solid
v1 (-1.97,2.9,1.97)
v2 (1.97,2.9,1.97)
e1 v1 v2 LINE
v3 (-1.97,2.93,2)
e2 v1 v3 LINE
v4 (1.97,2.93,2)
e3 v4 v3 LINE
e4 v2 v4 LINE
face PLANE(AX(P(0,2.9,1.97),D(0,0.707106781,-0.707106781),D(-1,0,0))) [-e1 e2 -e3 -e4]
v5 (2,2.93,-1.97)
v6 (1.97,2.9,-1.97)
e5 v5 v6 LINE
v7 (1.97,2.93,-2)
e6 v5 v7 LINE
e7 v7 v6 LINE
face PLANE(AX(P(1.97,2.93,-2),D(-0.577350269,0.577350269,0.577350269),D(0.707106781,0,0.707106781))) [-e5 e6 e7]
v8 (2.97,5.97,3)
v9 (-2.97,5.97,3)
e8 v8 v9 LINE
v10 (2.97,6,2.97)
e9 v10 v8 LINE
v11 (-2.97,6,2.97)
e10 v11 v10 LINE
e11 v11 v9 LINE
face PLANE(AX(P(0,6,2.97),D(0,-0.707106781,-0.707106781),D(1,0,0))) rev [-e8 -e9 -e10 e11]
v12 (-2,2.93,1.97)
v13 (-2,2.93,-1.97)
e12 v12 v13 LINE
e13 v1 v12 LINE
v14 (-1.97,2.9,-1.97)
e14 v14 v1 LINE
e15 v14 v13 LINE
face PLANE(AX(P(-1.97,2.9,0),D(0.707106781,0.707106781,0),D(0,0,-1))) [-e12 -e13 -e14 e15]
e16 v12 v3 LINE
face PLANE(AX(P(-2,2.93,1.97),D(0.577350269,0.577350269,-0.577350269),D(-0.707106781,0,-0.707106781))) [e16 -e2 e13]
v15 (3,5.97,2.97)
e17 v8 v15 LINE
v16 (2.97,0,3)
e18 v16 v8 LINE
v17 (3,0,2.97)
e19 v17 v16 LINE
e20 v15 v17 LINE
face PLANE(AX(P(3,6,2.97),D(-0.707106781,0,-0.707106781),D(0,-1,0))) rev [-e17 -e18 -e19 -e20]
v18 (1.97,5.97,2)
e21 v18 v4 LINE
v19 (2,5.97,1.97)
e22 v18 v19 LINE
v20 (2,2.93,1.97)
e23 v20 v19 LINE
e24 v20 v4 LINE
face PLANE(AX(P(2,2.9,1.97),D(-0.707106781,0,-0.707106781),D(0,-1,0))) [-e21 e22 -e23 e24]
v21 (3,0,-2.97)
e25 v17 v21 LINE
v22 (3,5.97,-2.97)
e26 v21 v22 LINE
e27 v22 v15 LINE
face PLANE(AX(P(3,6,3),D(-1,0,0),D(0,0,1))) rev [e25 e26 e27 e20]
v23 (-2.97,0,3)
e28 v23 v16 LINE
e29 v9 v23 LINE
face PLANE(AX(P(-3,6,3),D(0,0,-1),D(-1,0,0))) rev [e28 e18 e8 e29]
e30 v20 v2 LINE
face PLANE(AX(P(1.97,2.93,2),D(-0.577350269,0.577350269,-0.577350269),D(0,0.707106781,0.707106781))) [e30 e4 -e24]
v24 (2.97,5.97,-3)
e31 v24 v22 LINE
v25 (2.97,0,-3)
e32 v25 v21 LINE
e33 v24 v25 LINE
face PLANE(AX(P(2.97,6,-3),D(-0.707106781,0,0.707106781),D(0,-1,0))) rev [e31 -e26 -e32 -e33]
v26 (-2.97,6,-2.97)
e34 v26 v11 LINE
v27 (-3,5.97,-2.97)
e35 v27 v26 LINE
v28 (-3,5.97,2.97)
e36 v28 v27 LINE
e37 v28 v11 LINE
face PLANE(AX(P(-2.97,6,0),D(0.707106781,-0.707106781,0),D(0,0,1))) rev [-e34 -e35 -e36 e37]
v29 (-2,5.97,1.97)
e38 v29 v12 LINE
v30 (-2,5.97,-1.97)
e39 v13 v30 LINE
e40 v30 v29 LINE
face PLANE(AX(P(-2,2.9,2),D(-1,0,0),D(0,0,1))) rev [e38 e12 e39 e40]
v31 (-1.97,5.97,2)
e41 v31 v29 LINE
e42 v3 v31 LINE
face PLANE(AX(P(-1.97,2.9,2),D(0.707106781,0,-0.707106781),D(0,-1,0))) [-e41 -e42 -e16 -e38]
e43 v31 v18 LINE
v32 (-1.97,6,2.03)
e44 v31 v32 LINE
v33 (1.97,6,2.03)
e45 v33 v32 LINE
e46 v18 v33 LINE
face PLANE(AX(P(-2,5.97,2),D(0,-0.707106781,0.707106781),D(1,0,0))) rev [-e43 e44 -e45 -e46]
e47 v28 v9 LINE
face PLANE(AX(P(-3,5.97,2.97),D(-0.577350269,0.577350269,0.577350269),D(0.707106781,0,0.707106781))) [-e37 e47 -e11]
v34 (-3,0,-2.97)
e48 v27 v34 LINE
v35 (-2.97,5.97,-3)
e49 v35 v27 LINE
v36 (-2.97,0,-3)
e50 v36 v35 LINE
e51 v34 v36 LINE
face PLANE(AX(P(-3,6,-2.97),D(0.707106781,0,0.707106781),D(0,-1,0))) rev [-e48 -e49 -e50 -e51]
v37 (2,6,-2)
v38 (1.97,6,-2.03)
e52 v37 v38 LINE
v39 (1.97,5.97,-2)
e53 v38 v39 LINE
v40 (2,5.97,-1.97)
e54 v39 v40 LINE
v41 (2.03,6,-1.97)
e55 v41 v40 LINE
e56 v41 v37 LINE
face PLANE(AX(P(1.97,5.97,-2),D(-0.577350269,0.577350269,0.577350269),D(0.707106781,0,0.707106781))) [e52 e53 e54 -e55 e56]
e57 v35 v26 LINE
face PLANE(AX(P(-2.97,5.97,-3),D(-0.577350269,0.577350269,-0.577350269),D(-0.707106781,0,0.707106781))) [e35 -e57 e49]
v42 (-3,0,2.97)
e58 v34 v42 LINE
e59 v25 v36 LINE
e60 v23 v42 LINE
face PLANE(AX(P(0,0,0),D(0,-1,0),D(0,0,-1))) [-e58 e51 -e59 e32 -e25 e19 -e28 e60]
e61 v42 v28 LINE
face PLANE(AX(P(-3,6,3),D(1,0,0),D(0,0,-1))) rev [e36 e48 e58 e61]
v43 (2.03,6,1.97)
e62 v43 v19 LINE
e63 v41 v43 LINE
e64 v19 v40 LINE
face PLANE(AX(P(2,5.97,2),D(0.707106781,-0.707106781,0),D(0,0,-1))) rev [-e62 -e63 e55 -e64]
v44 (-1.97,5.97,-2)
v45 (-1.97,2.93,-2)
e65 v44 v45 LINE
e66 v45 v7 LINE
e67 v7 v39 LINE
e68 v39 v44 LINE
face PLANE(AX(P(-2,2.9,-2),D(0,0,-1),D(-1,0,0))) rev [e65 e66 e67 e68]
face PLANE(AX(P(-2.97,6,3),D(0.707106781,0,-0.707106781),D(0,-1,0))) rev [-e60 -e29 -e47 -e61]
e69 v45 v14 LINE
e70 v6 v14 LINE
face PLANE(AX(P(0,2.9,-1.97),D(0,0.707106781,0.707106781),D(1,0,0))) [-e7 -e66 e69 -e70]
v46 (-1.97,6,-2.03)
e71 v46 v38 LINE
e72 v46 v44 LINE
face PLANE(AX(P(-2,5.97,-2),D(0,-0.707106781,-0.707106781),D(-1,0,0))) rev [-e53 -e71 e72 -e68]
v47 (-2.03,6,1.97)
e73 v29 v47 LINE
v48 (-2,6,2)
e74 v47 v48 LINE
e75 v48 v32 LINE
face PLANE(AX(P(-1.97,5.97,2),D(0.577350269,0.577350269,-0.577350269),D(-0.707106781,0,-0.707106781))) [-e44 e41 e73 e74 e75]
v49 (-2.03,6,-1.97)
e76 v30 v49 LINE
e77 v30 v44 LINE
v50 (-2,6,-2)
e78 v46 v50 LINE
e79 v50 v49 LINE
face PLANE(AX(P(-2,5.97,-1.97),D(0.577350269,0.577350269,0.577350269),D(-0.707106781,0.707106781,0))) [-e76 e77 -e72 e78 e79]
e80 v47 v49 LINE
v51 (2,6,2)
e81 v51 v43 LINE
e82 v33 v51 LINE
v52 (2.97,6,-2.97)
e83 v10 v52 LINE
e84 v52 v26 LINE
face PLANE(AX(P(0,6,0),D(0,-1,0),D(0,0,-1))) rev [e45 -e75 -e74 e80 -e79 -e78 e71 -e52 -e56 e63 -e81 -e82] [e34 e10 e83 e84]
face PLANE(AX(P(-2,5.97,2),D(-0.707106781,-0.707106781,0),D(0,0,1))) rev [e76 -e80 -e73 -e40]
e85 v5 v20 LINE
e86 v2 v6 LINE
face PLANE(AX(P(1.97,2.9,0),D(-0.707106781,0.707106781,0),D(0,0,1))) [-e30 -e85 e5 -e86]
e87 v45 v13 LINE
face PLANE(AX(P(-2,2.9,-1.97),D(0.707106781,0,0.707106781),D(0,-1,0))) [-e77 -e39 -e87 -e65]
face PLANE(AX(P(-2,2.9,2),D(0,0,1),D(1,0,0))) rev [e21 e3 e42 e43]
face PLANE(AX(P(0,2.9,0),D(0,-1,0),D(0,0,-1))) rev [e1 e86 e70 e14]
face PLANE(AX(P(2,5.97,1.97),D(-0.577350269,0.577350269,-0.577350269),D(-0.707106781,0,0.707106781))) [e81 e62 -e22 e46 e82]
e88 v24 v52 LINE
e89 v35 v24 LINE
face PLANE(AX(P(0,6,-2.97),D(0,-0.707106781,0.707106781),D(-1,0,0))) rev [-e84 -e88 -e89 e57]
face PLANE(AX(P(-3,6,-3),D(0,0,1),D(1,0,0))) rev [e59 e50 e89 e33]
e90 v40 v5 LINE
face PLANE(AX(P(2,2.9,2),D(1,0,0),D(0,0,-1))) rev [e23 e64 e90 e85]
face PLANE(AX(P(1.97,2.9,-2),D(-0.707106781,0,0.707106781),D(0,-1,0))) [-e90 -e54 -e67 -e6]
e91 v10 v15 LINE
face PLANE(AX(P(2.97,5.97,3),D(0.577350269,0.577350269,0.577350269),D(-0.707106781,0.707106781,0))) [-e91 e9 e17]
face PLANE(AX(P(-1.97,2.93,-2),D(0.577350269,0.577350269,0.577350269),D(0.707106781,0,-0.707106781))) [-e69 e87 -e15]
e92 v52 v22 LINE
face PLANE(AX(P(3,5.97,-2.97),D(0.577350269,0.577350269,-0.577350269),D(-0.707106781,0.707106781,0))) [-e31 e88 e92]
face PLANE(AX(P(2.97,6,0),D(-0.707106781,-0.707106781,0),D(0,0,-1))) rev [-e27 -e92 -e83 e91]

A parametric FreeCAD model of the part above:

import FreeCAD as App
import Part
import Sketcher

V = App.Vector
Q = App.Units.Quantity


def edges_at(feature, points):
    """Names of the edges that pass closest to the given points."""
    edges = feature.Shape.Edges
    near = lambda p: min(range(len(edges)), key=lambda i: edges[i].distToShape(Part.Vertex(*p))[0])
    return sorted({f"Edge{near(p) + 1}" for p in points})


def add_polygon(sketch, points):
    """Adds a closed chain of lines whose ends are joined by coincident constraints."""
    first, n = sketch.GeometryCount, len(points)
    for a, b in zip(points, points[1:] + points[:1]):
        sketch.addGeometry(Part.LineSegment(App.Vector(*a, 0), App.Vector(*b, 0)), False)
    for i in range(n):
        sketch.addConstraint(Sketcher.Constraint("Coincident", first + i, 2, first + (i + 1) % n, 1))

doc = App.newDocument("Part")
body = doc.addObject("PartDesign::Body", "Body")

# Sketch on XZ plane
sketch1 = doc.addObject("Sketcher::SketchObject", "Sketch")
body.addObject(sketch1)
sketch1.AttachmentSupport = (doc.XZ_Plane, [""])
sketch1.MapMode = "FlatFace"
add_polygon(sketch1, [(-3, -3), (-3, 3), (3, 3), (3, -3)])  # lines 0-3
sketch1.addConstraint([
    Sketcher.Constraint("Vertical", 0),
    Sketcher.Constraint("Horizontal", 1),
    Sketcher.Constraint("Vertical", 2),
    Sketcher.Constraint("Horizontal", 3),
    Sketcher.Constraint("Symmetric", 0, 2, 2, 2, -1, 1),
    Sketcher.Constraint("Equal", 3, 0),
    Sketcher.Constraint("DistanceX", 1, 1, 1, 2, Q("6 mm")),
])
pad1 = doc.addObject("PartDesign::Pad", "Pad")
body.addObject(pad1)
pad1.Profile = sketch1
pad1.Length = 6
pad1.Reversed = True

# Sketch on XZ plane
sketch2 = doc.addObject("Sketcher::SketchObject", "Sketch001")
body.addObject(sketch2)
sketch2.AttachmentSupport = (doc.XZ_Plane, [""])
sketch2.MapMode = "FlatFace"
sketch2.AttachmentOffset = App.Placement(V(0, 0, -6), App.Rotation())
add_polygon(sketch2, [(-2, -2), (-2, 2), (2, 2), (2, -2)])  # lines 0-3
sketch2.addConstraint([
    Sketcher.Constraint("Vertical", 0),
    Sketcher.Constraint("Horizontal", 1),
    Sketcher.Constraint("Vertical", 2),
    Sketcher.Constraint("Horizontal", 3),
    Sketcher.Constraint("Symmetric", 0, 2, 2, 2, -1, 1),
    Sketcher.Constraint("Equal", 3, 0),
    Sketcher.Constraint("DistanceX", 1, 1, 1, 2, Q("4 mm")),
])
pocket1 = doc.addObject("PartDesign::Pocket", "Pocket")
body.addObject(pocket1)
pocket1.Profile = sketch2
pocket1.Length = 3.1
pocket1.Reversed = True
doc.recompute()

chamfer = doc.addObject("PartDesign::Chamfer", "Chamfer")
body.addObject(chamfer)
chamfer.Base = (pocket1, edges_at(pocket1, [
    (-3, 6, 0),
    (2, 2.9, 0),
    (2, 4.45, -2),
    (0, 6, 3),
    (0, 2.9, 2),
    (2, 4.45, 2),
    (-2, 2.9, 0),
    (-2, 4.45, 2),
    (0, 2.9, -2),
    (-2, 4.45, -2),
    (2, 6, 0),
    (0, 6, -2),
    (-2, 6, 0),
    (0, 6, 2),
    (3, 6, 0),
    (3, 3, 3),
    (-3, 3, 3),
    (-3, 3, -3),
    (3, 3, -3),
    (0, 6, -3),
]))
chamfer.Size = 0.03

doc.recompute()
